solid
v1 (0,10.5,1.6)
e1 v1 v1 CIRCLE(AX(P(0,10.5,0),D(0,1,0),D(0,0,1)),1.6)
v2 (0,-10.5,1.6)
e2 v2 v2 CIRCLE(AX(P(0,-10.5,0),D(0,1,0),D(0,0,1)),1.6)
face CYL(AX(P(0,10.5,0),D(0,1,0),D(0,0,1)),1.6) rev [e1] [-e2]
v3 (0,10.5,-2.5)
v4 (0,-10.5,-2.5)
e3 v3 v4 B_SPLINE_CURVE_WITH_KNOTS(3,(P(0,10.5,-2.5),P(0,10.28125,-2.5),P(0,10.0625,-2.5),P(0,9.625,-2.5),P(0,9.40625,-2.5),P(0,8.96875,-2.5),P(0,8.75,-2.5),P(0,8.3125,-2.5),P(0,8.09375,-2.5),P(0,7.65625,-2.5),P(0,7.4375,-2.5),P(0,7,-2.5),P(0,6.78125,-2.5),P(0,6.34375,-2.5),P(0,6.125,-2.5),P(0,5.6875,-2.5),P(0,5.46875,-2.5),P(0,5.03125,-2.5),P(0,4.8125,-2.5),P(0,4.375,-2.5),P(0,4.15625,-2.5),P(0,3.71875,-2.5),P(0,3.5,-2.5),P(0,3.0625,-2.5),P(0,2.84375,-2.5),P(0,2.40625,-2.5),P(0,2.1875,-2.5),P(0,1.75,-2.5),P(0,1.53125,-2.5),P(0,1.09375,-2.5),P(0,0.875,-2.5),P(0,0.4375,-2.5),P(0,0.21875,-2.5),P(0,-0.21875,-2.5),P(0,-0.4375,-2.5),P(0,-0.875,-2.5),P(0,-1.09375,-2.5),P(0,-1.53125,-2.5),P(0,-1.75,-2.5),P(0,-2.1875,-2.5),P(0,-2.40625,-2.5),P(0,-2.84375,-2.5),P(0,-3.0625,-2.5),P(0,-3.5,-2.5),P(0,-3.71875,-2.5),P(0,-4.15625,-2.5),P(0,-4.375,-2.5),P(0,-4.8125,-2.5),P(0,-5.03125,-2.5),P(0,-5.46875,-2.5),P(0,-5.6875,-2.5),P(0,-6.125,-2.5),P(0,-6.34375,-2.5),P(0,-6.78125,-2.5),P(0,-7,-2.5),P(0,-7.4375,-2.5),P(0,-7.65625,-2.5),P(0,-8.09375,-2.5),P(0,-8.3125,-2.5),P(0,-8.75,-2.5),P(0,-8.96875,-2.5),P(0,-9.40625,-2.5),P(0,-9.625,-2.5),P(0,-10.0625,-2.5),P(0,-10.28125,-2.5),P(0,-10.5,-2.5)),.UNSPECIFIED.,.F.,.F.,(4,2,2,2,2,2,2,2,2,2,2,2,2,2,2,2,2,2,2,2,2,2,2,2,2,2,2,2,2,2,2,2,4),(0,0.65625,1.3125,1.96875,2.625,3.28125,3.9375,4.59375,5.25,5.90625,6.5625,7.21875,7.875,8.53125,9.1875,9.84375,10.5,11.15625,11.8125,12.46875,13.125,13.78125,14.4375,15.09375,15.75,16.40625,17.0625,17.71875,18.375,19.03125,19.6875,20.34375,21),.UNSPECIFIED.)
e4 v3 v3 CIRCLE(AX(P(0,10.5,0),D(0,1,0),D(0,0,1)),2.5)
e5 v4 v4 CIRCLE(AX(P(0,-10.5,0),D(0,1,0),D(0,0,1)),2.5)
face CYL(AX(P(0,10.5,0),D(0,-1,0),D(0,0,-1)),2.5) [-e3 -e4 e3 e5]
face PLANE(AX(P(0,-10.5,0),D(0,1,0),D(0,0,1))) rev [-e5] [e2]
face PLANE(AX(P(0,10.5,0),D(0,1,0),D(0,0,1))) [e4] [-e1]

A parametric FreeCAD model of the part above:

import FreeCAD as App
import Part
import Sketcher
from FreeCAD import Vector

doc = App.newDocument("Part")
body = doc.addObject("PartDesign::Body", "Body")

# Sketch on XZ plane
sketch1 = body.newObject("Sketcher::SketchObject", "Sketch")
sketch1.AttachmentSupport = (doc.getObject("XZ_Plane"), [""])
sketch1.MapMode = "FlatFace"
sketch1.addGeometry(Part.Circle(Vector(0, 0, 0), Vector(0, 0, 1), 2.5), False)
sketch1.addConstraint([
    Sketcher.Constraint("Coincident", 0, 3, -1, 1),
    Sketcher.Constraint("Diameter", 0, 5.0),
])
pad1 = body.newObject("PartDesign::Pad", "Pad")
pad1.Profile = sketch1
pad1.Length = 21
pad1.Midplane = True

# Sketch on XZ plane
sketch2 = body.newObject("Sketcher::SketchObject", "Sketch001")
sketch2.AttachmentSupport = (doc.getObject("XZ_Plane"), [""])
sketch2.MapMode = "FlatFace"
sketch2.AttachmentOffset = App.Placement(Vector(0, 0, -10.5), App.Rotation())
sketch2.addGeometry(Part.Circle(Vector(0, 0, 0), Vector(0, 0, 1), 1.6), False)
sketch2.addConstraint([
    Sketcher.Constraint("Coincident", 0, 3, -1, 1),
    Sketcher.Constraint("Diameter", 0, 3.2),
])
doc.recompute()
hole = body.newObject("PartDesign::Hole", "Hole")
hole.Profile = sketch2
hole.ThreadType = "None"
hole.Diameter = 3.2
hole.DepthType = "ThroughAll"
hole.Reversed = True

doc.recompute()
